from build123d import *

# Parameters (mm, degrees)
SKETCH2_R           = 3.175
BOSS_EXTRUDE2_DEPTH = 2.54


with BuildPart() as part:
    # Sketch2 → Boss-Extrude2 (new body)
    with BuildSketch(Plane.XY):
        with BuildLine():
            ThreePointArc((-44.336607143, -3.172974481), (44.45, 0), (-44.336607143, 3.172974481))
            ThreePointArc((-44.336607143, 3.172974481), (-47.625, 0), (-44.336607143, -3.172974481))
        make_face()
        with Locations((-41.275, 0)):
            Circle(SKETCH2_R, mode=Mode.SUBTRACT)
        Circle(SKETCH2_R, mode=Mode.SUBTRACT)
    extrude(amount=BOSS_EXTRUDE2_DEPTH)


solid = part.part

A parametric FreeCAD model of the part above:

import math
import FreeCAD as App
import Part
import Sketcher

V = App.Vector
Q = App.Units.Quantity

doc = App.newDocument("Part")
body = doc.addObject("PartDesign::Body", "Body")

sketch1 = body.newObject("Sketcher::SketchObject", "Sketch")
sketch1.AttachmentSupport = (doc.getObject("XY_Plane"), [""])
sketch1.MapMode = "FlatFace"
sketch1.addGeometry(Part.ArcOfCircle(Part.Circle(V(0, 0, 0), V(0, 0, 1), 44.45), math.radians(-175.906574), math.radians(175.906574)), False)
sketch1.addGeometry(Part.ArcOfCircle(Part.Circle(V(-44.45, 0, 0), V(0, 0, 1), 3.175), math.radians(87.953287), math.radians(272.046713)), False)
sketch1.addGeometry(Part.Circle(V(-41.275, 0, 0), V(0, 0, 1), 3.175), False)
sketch1.addGeometry(Part.Circle(V(0, 0, 0), V(0, 0, 1), 3.175), False)
sketch1.addConstraint(Sketcher.Constraint("Coincident", 0, 1, 1, 2))
sketch1.addConstraint(Sketcher.Constraint("Coincident", 1, 1, 0, 2))
sketch1.addConstraint(Sketcher.Constraint("Coincident", 0, 3, -1, 1))
sketch1.addConstraint(Sketcher.Constraint("Coincident", 3, 3, -1, 1))
sketch1.addConstraint(Sketcher.Constraint("Equal", 1, 2))
sketch1.addConstraint(Sketcher.Constraint("Equal", 2, 3))
sketch1.addConstraint(Sketcher.Constraint("PointOnObject", 1, 3, -1))
sketch1.addConstraint(Sketcher.Constraint("PointOnObject", 2, 3, -1))
sketch1.addConstraint(Sketcher.Constraint("Diameter", 2, Q("0.25 in")))
sketch1.addConstraint(Sketcher.Constraint("Radius", 0, Q("1.75 in")))
sketch1.addConstraint(Sketcher.Constraint("DistanceX", 1, 3, -1, 1, Q("1.75 in")))
sketch1.addConstraint(Sketcher.Constraint("DistanceX", 2, 3, -1, 1, Q("1.625 in")))
pad1 = body.newObject("PartDesign::Pad", "Pad")
pad1.Profile = sketch1
pad1.Length = Q("0.1 in")

doc.recompute()
